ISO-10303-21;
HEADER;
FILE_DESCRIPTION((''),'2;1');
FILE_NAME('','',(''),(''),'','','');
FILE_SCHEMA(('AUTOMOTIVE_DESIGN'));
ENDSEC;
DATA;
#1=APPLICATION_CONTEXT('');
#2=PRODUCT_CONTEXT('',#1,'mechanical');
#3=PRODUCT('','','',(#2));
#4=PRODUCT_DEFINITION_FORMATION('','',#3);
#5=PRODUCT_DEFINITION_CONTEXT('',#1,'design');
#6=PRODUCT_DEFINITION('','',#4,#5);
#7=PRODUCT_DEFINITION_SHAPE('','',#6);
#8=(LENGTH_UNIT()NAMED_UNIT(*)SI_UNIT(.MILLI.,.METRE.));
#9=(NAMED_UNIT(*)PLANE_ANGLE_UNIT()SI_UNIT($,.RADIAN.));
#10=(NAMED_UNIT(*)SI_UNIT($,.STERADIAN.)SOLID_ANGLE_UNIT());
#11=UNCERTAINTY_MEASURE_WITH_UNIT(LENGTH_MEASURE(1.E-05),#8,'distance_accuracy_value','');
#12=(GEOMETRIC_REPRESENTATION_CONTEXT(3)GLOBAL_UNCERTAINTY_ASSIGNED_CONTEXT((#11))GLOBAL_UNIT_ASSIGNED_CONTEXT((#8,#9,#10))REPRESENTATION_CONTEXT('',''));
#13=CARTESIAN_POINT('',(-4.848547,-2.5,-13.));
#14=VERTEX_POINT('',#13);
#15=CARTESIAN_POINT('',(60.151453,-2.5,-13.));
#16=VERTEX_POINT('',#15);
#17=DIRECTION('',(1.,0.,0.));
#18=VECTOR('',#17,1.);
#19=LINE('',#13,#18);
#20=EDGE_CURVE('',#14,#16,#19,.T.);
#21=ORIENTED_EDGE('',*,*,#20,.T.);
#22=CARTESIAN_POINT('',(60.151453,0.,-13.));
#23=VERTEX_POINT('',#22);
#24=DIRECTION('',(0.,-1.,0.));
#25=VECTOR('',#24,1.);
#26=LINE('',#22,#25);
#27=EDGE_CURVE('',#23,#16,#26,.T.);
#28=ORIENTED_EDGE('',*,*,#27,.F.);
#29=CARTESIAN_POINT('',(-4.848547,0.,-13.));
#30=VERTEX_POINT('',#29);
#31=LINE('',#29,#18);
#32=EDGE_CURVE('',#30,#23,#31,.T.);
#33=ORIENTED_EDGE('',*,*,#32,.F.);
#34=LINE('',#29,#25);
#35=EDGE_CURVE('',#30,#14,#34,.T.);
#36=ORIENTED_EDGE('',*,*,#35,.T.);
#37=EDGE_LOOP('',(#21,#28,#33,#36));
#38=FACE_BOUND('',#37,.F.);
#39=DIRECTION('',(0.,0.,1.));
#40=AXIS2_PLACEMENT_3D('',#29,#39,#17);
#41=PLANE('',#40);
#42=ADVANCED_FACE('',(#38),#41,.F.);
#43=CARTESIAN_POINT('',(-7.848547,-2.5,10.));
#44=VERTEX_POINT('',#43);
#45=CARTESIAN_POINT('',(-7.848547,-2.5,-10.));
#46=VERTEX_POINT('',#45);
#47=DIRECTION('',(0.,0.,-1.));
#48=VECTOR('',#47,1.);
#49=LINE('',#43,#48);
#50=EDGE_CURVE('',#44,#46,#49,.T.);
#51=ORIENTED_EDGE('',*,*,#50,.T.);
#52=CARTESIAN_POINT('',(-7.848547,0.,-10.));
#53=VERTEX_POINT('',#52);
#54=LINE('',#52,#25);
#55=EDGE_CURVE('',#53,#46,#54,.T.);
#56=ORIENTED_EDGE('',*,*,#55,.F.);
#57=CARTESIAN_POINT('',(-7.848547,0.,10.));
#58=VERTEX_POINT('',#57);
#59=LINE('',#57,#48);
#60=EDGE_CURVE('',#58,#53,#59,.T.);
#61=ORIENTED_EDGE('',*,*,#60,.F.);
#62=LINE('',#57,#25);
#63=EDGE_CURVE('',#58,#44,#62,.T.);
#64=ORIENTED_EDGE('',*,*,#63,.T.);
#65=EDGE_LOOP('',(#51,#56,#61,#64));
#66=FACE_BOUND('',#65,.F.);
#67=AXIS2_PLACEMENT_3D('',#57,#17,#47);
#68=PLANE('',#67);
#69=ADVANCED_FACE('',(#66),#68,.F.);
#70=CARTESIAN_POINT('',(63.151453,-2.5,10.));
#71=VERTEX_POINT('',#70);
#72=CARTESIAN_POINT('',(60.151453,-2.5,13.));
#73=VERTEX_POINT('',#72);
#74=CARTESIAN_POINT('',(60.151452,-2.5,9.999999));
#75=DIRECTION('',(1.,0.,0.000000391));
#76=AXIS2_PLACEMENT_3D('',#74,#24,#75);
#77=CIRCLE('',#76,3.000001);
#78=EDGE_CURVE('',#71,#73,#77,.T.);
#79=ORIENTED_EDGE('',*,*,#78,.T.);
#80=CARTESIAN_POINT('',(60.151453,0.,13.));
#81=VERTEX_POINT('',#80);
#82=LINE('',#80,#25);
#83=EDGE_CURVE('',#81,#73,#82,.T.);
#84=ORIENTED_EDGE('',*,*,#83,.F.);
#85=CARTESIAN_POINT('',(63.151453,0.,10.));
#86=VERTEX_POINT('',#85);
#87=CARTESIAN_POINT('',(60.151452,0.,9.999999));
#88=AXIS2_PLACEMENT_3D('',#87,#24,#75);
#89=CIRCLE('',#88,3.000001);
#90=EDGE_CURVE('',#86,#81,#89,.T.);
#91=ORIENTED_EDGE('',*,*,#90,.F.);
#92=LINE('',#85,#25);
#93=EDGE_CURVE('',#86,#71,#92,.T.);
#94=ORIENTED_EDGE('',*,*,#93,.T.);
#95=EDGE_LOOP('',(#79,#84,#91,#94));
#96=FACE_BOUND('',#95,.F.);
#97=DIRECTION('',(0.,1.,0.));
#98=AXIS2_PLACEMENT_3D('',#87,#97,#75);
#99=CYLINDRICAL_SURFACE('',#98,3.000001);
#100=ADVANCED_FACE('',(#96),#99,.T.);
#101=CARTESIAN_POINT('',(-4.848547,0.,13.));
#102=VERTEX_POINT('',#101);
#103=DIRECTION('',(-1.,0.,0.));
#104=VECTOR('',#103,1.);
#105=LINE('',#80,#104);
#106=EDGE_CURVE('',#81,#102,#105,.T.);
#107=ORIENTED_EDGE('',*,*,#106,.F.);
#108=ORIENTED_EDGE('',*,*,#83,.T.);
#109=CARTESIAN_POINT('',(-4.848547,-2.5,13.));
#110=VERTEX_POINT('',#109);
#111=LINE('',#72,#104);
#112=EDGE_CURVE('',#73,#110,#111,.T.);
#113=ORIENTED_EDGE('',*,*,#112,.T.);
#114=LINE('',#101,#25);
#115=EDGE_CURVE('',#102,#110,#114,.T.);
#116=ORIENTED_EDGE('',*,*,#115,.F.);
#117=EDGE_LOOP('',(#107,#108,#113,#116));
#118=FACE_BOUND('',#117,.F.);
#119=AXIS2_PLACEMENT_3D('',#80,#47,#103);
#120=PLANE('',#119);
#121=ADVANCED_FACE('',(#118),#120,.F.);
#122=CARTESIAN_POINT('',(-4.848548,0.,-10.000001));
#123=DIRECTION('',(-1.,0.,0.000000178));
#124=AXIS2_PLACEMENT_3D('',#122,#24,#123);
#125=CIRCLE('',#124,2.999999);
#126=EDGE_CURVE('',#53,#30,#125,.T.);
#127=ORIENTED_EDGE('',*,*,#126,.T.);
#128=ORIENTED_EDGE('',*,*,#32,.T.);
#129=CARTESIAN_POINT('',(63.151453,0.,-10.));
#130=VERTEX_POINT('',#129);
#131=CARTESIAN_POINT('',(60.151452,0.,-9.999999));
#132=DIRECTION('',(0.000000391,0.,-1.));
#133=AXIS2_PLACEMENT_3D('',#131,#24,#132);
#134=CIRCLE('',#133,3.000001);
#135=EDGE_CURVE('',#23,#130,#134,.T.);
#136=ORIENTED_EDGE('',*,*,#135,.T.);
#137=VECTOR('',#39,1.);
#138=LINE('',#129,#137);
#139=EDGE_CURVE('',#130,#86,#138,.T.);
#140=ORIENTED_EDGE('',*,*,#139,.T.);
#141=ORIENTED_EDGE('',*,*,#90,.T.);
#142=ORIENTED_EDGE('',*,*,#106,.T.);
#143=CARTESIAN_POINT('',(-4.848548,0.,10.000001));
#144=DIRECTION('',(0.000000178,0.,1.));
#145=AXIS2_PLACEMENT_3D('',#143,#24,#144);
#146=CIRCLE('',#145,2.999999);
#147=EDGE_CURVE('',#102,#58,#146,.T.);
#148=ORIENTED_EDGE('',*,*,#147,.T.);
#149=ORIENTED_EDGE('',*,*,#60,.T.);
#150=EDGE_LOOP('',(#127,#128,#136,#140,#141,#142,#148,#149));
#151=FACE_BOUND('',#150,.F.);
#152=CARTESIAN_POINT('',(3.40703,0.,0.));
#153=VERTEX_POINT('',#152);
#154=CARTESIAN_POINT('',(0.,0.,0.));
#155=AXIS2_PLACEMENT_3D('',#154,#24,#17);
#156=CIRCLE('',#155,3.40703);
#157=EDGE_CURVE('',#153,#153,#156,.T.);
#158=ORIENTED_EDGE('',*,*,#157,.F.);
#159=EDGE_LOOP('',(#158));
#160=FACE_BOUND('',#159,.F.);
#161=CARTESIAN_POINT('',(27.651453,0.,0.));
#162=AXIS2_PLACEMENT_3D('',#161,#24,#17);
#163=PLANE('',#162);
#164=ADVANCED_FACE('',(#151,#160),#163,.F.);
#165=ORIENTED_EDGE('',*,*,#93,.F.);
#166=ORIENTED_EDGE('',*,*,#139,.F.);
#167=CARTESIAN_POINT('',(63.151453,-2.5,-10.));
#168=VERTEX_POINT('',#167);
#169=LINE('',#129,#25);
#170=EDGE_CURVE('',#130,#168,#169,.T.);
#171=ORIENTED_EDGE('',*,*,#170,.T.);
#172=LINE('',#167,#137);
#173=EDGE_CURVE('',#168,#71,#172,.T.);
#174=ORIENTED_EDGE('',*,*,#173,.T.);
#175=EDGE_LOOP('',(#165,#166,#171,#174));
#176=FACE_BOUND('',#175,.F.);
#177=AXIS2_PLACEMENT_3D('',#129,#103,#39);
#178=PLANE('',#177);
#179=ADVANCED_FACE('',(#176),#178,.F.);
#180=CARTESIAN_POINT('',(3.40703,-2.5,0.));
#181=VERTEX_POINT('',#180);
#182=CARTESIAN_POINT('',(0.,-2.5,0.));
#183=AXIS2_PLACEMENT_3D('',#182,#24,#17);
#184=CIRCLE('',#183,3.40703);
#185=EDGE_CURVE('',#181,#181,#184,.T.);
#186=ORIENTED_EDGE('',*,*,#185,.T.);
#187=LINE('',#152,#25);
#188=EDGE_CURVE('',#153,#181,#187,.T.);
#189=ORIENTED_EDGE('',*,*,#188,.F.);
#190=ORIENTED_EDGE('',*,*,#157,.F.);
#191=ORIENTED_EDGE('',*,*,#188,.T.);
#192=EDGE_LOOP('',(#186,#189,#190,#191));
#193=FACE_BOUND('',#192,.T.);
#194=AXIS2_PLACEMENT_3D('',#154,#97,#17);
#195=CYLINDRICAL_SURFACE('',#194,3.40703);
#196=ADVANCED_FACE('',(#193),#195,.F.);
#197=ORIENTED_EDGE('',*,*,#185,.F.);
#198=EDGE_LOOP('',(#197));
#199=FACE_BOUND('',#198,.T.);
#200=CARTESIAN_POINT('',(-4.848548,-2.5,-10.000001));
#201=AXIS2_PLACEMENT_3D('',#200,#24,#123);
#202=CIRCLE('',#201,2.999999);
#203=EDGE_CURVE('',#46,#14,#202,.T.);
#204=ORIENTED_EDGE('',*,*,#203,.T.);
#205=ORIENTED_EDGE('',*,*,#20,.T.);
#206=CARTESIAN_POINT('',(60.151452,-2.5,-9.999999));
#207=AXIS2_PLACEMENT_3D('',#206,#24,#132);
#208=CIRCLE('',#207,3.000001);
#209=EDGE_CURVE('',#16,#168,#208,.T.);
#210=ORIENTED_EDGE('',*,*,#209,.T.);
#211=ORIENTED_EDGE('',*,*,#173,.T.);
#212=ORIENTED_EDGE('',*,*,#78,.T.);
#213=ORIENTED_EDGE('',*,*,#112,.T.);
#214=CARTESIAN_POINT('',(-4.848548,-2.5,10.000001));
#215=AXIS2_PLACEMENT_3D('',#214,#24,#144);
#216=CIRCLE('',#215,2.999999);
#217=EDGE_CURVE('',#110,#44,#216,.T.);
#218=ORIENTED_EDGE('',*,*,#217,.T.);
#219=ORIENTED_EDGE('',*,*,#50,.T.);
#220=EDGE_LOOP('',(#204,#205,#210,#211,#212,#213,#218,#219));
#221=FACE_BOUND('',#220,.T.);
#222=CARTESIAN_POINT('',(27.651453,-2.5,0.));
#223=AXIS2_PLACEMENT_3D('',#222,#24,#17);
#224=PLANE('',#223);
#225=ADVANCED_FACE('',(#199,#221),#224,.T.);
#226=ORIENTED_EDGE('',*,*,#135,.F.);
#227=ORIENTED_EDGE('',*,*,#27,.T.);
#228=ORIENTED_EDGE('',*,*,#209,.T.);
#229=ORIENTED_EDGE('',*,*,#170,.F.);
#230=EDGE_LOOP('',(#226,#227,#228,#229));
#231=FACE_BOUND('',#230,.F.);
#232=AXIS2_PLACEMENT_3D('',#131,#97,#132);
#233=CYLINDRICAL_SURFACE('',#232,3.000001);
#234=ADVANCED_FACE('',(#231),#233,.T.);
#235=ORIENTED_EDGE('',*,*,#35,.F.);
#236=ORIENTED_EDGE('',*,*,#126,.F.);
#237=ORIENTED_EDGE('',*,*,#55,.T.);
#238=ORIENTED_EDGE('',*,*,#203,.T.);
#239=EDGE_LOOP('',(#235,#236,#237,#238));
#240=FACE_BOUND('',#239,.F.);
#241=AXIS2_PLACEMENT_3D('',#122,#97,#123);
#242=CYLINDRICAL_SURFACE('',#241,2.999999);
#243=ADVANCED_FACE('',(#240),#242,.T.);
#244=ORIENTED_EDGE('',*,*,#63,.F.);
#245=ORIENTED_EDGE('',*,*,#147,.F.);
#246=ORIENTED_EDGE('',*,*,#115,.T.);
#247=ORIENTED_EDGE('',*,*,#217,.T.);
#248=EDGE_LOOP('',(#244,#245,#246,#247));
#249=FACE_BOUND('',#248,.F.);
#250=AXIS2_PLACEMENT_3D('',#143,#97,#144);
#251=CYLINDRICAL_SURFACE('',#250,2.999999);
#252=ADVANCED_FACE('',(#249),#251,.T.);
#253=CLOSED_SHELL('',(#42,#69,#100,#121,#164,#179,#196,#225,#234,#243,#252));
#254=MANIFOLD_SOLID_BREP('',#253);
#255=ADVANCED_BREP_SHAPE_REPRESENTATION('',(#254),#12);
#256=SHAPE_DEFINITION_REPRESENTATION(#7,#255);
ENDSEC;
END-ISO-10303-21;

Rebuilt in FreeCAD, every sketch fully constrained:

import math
import FreeCAD as App
import Part
import Sketcher

V = App.Vector

doc = App.newDocument("Part")
body = doc.addObject("PartDesign::Body", "Body")

sketch1 = doc.addObject("Sketcher::SketchObject", "Sketch")
body.addObject(sketch1)
sketch1.AttachmentSupport = (doc.XZ_Plane, [""])
sketch1.MapMode = "FlatFace"
sketch1.addGeometry(Part.LineSegment(V(60.2, 13, 0), V(-4.8, 13, 0)), False)
sketch1.addGeometry(Part.ArcOfCircle(Part.Circle(V(-4.8, 10, 0), V(0, 0, 1), 3), math.radians(90), math.radians(180)), False)
sketch1.addGeometry(Part.LineSegment(V(-7.8, 10, 0), V(-7.8, -10, 0)), False)
sketch1.addGeometry(Part.ArcOfCircle(Part.Circle(V(-4.8, -10, 0), V(0, 0, 1), 3), math.radians(180), math.radians(270)), False)
sketch1.addGeometry(Part.LineSegment(V(-4.8, -13, 0), V(60.2, -13, 0)), False)
sketch1.addGeometry(Part.ArcOfCircle(Part.Circle(V(60.2, -10, 0), V(0, 0, 1), 3), math.radians(-90), math.radians(0)), False)
sketch1.addGeometry(Part.LineSegment(V(63.2, -10, 0), V(63.2, 10, 0)), False)
sketch1.addGeometry(Part.ArcOfCircle(Part.Circle(V(60.2, 10, 0), V(0, 0, 1), 3), math.radians(0), math.radians(90)), False)
sketch1.addGeometry(Part.Circle(V(0, 0, 0), V(0, 0, 1), 3.4), False)
sketch1.addConstraint(Sketcher.Constraint("Tangent", 0, 2, 1, 1))
sketch1.addConstraint(Sketcher.Constraint("Tangent", 1, 2, 2, 1))
sketch1.addConstraint(Sketcher.Constraint("Tangent", 2, 2, 3, 1))
sketch1.addConstraint(Sketcher.Constraint("Tangent", 3, 2, 4, 1))
sketch1.addConstraint(Sketcher.Constraint("Tangent", 4, 2, 5, 1))
sketch1.addConstraint(Sketcher.Constraint("Tangent", 5, 2, 6, 1))
sketch1.addConstraint(Sketcher.Constraint("Tangent", 6, 2, 7, 1))
sketch1.addConstraint(Sketcher.Constraint("Tangent", 7, 2, 0, 1))
sketch1.addConstraint(Sketcher.Constraint("Horizontal", 0))
sketch1.addConstraint(Sketcher.Constraint("Vertical", 2))
sketch1.addConstraint(Sketcher.Constraint("Horizontal", 4))
sketch1.addConstraint(Sketcher.Constraint("Vertical", 6))
sketch1.addConstraint(Sketcher.Constraint("Coincident", 8, 3, -1, 1))
sketch1.addConstraint(Sketcher.Constraint("Equal", 1, 3))
sketch1.addConstraint(Sketcher.Constraint("Equal", 3, 5))
sketch1.addConstraint(Sketcher.Constraint("Equal", 5, 7))
sketch1.addConstraint(Sketcher.Constraint("Radius", 1, 2.999999))
sketch1.addConstraint(Sketcher.Constraint("DistanceX", 0, 2, 0, 1, 65.0))
sketch1.addConstraint(Sketcher.Constraint("DistanceY", 2, 2, 2, 1, 20.0))
sketch1.addConstraint(Sketcher.Constraint("DistanceY", -1, 1, 1, 3, 10.000001))
sketch1.addConstraint(Sketcher.Constraint("Diameter", 8, 6.81406))
sketch1.addConstraint(Sketcher.Constraint("DistanceX", -1, 1, 5, 3, 60.151452))
pad1 = doc.addObject("PartDesign::Pad", "Pad")
body.addObject(pad1)
pad1.Profile = sketch1
pad1.Length = 2.5

doc.recompute()
